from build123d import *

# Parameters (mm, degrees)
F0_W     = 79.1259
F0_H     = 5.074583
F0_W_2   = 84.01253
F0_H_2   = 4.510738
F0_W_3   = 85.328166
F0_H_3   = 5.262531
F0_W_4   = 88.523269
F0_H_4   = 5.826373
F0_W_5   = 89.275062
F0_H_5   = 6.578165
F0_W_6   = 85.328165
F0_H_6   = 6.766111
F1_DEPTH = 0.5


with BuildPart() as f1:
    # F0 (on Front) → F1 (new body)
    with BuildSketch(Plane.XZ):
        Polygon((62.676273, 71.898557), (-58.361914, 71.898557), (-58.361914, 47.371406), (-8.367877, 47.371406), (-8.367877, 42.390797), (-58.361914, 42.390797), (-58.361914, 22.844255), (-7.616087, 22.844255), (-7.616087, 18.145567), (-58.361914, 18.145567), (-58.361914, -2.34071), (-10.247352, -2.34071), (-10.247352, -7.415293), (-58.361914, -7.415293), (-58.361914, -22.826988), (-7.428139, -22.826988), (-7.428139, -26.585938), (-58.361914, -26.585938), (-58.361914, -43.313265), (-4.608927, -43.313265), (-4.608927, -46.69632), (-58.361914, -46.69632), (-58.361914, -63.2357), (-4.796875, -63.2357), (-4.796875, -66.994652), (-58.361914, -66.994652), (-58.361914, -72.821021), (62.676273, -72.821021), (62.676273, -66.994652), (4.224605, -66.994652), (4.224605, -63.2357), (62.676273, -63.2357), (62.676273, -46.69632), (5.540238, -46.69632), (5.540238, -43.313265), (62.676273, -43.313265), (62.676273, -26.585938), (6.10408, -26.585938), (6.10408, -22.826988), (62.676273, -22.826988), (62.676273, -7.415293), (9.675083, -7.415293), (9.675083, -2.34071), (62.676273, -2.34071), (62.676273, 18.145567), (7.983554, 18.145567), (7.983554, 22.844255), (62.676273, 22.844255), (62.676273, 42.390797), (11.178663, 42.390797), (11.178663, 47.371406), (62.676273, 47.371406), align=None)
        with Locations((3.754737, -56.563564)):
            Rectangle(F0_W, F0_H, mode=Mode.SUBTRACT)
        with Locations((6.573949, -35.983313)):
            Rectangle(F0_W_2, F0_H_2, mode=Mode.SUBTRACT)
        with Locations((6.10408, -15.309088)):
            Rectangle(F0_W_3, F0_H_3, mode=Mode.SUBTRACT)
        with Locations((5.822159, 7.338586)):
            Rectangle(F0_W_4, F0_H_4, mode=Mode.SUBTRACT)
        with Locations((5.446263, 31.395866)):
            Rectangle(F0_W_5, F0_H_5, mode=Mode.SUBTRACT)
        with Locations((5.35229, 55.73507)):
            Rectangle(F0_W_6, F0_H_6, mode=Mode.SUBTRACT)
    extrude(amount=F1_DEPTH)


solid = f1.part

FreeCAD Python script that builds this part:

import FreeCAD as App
import Part
import Sketcher
from FreeCAD import Vector
Q = App.Units.Quantity


def add_polygon(sketch, points):
    """Adds a closed chain of lines whose ends are joined by coincident constraints."""
    first, n = sketch.GeometryCount, len(points)
    for a, b in zip(points, points[1:] + points[:1]):
        sketch.addGeometry(Part.LineSegment(App.Vector(*a, 0), App.Vector(*b, 0)), False)
    for i in range(n):
        sketch.addConstraint(Sketcher.Constraint("Coincident", first + i, 2, first + (i + 1) % n, 1))

doc = App.newDocument("Part")
body = doc.addObject("PartDesign::Body", "Body")

sketch1 = body.newObject("Sketcher::SketchObject", "Sketch")
sketch1.AttachmentSupport = (doc.getObject("XZ_Plane"), [""])
sketch1.MapMode = "FlatFace"
add_polygon(sketch1, [(62.676273, 71.898557), (-58.361914, 71.898557), (-58.361914, 47.371406), (-8.367877, 47.371406), (-8.367877, 42.390797), (-58.361914, 42.390797), (-58.361914, 22.844255), (-7.616087, 22.844255), (-7.616087, 18.145567), (-58.361914, 18.145567), (-58.361914, -2.34071), (-10.247352, -2.34071), (-10.247352, -7.415293), (-58.361914, -7.415293), (-58.361914, -22.826988), (-7.428139, -22.826988), (-7.428139, -26.585938), (-58.361914, -26.585938), (-58.361914, -43.313265), (-4.608927, -43.313265), (-4.608927, -46.69632), (-58.361914, -46.69632), (-58.361914, -63.2357), (-4.796875, -63.2357), (-4.796875, -66.994652), (-58.361914, -66.994652), (-58.361914, -72.821021), (62.676273, -72.821021), (62.676273, -66.994652), (4.224605, -66.994652), (4.224605, -63.2357), (62.676273, -63.2357), (62.676273, -46.69632), (5.540238, -46.69632), (5.540238, -43.313265), (62.676273, -43.313265), (62.676273, -26.585938), (6.10408, -26.585938), (6.10408, -22.826988), (62.676273, -22.826988), (62.676273, -7.415293), (9.675083, -7.415293), (9.675083, -2.34071), (62.676273, -2.34071), (62.676273, 18.145567), (7.983554, 18.145567), (7.983554, 22.844255), (62.676273, 22.844255), (62.676273, 42.390797), (11.178663, 42.390797), (11.178663, 47.371406), (62.676273, 47.371406)])
add_polygon(sketch1, [(43.317687, -59.100856), (-35.808213, -59.100856), (-35.808213, -54.026272), (43.317687, -54.026272)])
add_polygon(sketch1, [(48.580214, -38.238682), (-35.432316, -38.238682), (-35.432316, -33.727944), (48.580214, -33.727944)])
add_polygon(sketch1, [(48.768163, -17.940354), (-36.560003, -17.940354), (-36.560003, -12.677822), (48.768163, -12.677822)])
add_polygon(sketch1, [(48.016373, 52.352015), (-37.311793, 52.352015), (-37.311793, 59.118125), (48.016373, 59.118125)])
add_polygon(sketch1, [(50.083793, 4.4254), (-38.439476, 4.4254), (-38.439476, 10.251772), (50.083793, 10.251772)])
add_polygon(sketch1, [(50.083794, 28.106783), (-39.191268, 28.106783), (-39.191268, 34.684948), (50.083794, 34.684948)])
sketch1.addConstraint(Sketcher.Constraint("Horizontal", 0))
sketch1.addConstraint(Sketcher.Constraint("Vertical", 1))
sketch1.addConstraint(Sketcher.Constraint("Horizontal", 2))
sketch1.addConstraint(Sketcher.Constraint("Vertical", 3))
sketch1.addConstraint(Sketcher.Constraint("Horizontal", 4))
sketch1.addConstraint(Sketcher.Constraint("Vertical", 5))
sketch1.addConstraint(Sketcher.Constraint("Horizontal", 6))
sketch1.addConstraint(Sketcher.Constraint("Vertical", 7))
sketch1.addConstraint(Sketcher.Constraint("Horizontal", 8))
sketch1.addConstraint(Sketcher.Constraint("Vertical", 9))
sketch1.addConstraint(Sketcher.Constraint("Horizontal", 10))
sketch1.addConstraint(Sketcher.Constraint("Vertical", 11))
sketch1.addConstraint(Sketcher.Constraint("Horizontal", 12))
sketch1.addConstraint(Sketcher.Constraint("Vertical", 13))
sketch1.addConstraint(Sketcher.Constraint("Horizontal", 14))
sketch1.addConstraint(Sketcher.Constraint("Vertical", 15))
sketch1.addConstraint(Sketcher.Constraint("Horizontal", 16))
sketch1.addConstraint(Sketcher.Constraint("Vertical", 17))
sketch1.addConstraint(Sketcher.Constraint("Horizontal", 18))
sketch1.addConstraint(Sketcher.Constraint("Vertical", 19))
sketch1.addConstraint(Sketcher.Constraint("Horizontal", 20))
sketch1.addConstraint(Sketcher.Constraint("Vertical", 21))
sketch1.addConstraint(Sketcher.Constraint("Horizontal", 22))
sketch1.addConstraint(Sketcher.Constraint("Vertical", 23))
sketch1.addConstraint(Sketcher.Constraint("Horizontal", 24))
sketch1.addConstraint(Sketcher.Constraint("Vertical", 25))
sketch1.addConstraint(Sketcher.Constraint("Horizontal", 26))
sketch1.addConstraint(Sketcher.Constraint("Vertical", 27))
sketch1.addConstraint(Sketcher.Constraint("Horizontal", 28))
sketch1.addConstraint(Sketcher.Constraint("Vertical", 29))
sketch1.addConstraint(Sketcher.Constraint("Horizontal", 30))
sketch1.addConstraint(Sketcher.Constraint("Vertical", 31))
sketch1.addConstraint(Sketcher.Constraint("Horizontal", 32))
sketch1.addConstraint(Sketcher.Constraint("Vertical", 33))
sketch1.addConstraint(Sketcher.Constraint("Horizontal", 34))
sketch1.addConstraint(Sketcher.Constraint("Vertical", 35))
sketch1.addConstraint(Sketcher.Constraint("Horizontal", 36))
sketch1.addConstraint(Sketcher.Constraint("Vertical", 37))
sketch1.addConstraint(Sketcher.Constraint("Horizontal", 38))
sketch1.addConstraint(Sketcher.Constraint("Vertical", 39))
sketch1.addConstraint(Sketcher.Constraint("Horizontal", 40))
sketch1.addConstraint(Sketcher.Constraint("Vertical", 41))
sketch1.addConstraint(Sketcher.Constraint("Horizontal", 42))
sketch1.addConstraint(Sketcher.Constraint("Vertical", 43))
sketch1.addConstraint(Sketcher.Constraint("Horizontal", 44))
sketch1.addConstraint(Sketcher.Constraint("Vertical", 45))
sketch1.addConstraint(Sketcher.Constraint("Horizontal", 46))
sketch1.addConstraint(Sketcher.Constraint("Vertical", 47))
sketch1.addConstraint(Sketcher.Constraint("Horizontal", 48))
sketch1.addConstraint(Sketcher.Constraint("Vertical", 49))
sketch1.addConstraint(Sketcher.Constraint("Horizontal", 50))
sketch1.addConstraint(Sketcher.Constraint("Vertical", 51))
sketch1.addConstraint(Sketcher.Constraint("Horizontal", 52))
sketch1.addConstraint(Sketcher.Constraint("Vertical", 53))
sketch1.addConstraint(Sketcher.Constraint("Horizontal", 54))
sketch1.addConstraint(Sketcher.Constraint("Vertical", 55))
sketch1.addConstraint(Sketcher.Constraint("Horizontal", 56))
sketch1.addConstraint(Sketcher.Constraint("Vertical", 57))
sketch1.addConstraint(Sketcher.Constraint("Horizontal", 58))
sketch1.addConstraint(Sketcher.Constraint("Vertical", 59))
sketch1.addConstraint(Sketcher.Constraint("Horizontal", 60))
sketch1.addConstraint(Sketcher.Constraint("Vertical", 61))
sketch1.addConstraint(Sketcher.Constraint("Horizontal", 62))
sketch1.addConstraint(Sketcher.Constraint("Vertical", 63))
sketch1.addConstraint(Sketcher.Constraint("Horizontal", 64))
sketch1.addConstraint(Sketcher.Constraint("Vertical", 65))
sketch1.addConstraint(Sketcher.Constraint("Horizontal", 66))
sketch1.addConstraint(Sketcher.Constraint("Vertical", 67))
sketch1.addConstraint(Sketcher.Constraint("Horizontal", 68))
sketch1.addConstraint(Sketcher.Constraint("Vertical", 69))
sketch1.addConstraint(Sketcher.Constraint("Horizontal", 70))
sketch1.addConstraint(Sketcher.Constraint("Vertical", 71))
sketch1.addConstraint(Sketcher.Constraint("Horizontal", 72))
sketch1.addConstraint(Sketcher.Constraint("Vertical", 73))
sketch1.addConstraint(Sketcher.Constraint("Horizontal", 74))
sketch1.addConstraint(Sketcher.Constraint("Vertical", 75))
sketch1.addConstraint(Sketcher.Constraint("Horizontal", 24, 2, 27, 2))
sketch1.addConstraint(Sketcher.Constraint("Horizontal", 22, 2, 29, 2))
sketch1.addConstraint(Sketcher.Constraint("Horizontal", 20, 2, 31, 2))
sketch1.addConstraint(Sketcher.Constraint("Horizontal", 18, 2, 33, 2))
sketch1.addConstraint(Sketcher.Constraint("Horizontal", 16, 2, 35, 2))
sketch1.addConstraint(Sketcher.Constraint("Horizontal", 14, 2, 37, 2))
sketch1.addConstraint(Sketcher.Constraint("Horizontal", 12, 2, 39, 2))
sketch1.addConstraint(Sketcher.Constraint("Horizontal", 10, 2, 41, 2))
sketch1.addConstraint(Sketcher.Constraint("Horizontal", 8, 2, 43, 2))
sketch1.addConstraint(Sketcher.Constraint("Horizontal", 6, 2, 45, 2))
sketch1.addConstraint(Sketcher.Constraint("Horizontal", 4, 2, 47, 2))
sketch1.addConstraint(Sketcher.Constraint("Horizontal", 2, 2, 49, 2))
sketch1.addConstraint(Sketcher.Constraint("Vertical", 1, 2, 4, 2))
sketch1.addConstraint(Sketcher.Constraint("Vertical", 5, 2, 8, 2))
sketch1.addConstraint(Sketcher.Constraint("Vertical", 9, 2, 12, 2))
sketch1.addConstraint(Sketcher.Constraint("Vertical", 13, 2, 16, 2))
sketch1.addConstraint(Sketcher.Constraint("Vertical", 17, 2, 20, 2))
sketch1.addConstraint(Sketcher.Constraint("Vertical", 21, 2, 24, 2))
sketch1.addConstraint(Sketcher.Constraint("Vertical", 27, 2, 30, 2))
sketch1.addConstraint(Sketcher.Constraint("Vertical", 31, 2, 34, 2))
sketch1.addConstraint(Sketcher.Constraint("Vertical", 35, 2, 38, 2))
sketch1.addConstraint(Sketcher.Constraint("Vertical", 39, 2, 42, 2))
sketch1.addConstraint(Sketcher.Constraint("Vertical", 43, 2, 46, 2))
sketch1.addConstraint(Sketcher.Constraint("Vertical", 47, 2, 50, 2))
sketch1.addConstraint(Sketcher.Constraint("Vertical", 71, 2, 74, 2))
sketch1.addConstraint(Sketcher.Constraint("Equal", 62, 64))
sketch1.addConstraint(Sketcher.Constraint("Equal", 41, 53))
sketch1.addConstraint(Sketcher.Constraint("DistanceX", 52, 2, 52, 1, Q("79.1259 mm")))
sketch1.addConstraint(Sketcher.Constraint("DistanceX", 22, 1, 22, 2, Q("53.565039 mm")))
sketch1.addConstraint(Sketcher.Constraint("DistanceX", 40, 2, 40, 1, Q("53.00119 mm")))
sketch1.addConstraint(Sketcher.Constraint("DistanceX", 44, 2, 44, 1, Q("54.692719 mm")))
sketch1.addConstraint(Sketcher.Constraint("DistanceX", 48, 2, 48, 1, Q("51.49761 mm")))
sketch1.addConstraint(Sketcher.Constraint("DistanceX", 56, 2, 56, 1, Q("84.01253 mm")))
sketch1.addConstraint(Sketcher.Constraint("DistanceX", 68, 2, 68, 1, Q("88.523269 mm")))
sketch1.addConstraint(Sketcher.Constraint("DistanceX", 72, 2, 72, 1, Q("89.275062 mm")))
sketch1.addConstraint(Sketcher.Constraint("DistanceY", 1, 2, 1, 1, Q("24.527151 mm")))
sketch1.addConstraint(Sketcher.Constraint("DistanceY", 3, 2, 3, 1, Q("4.980609 mm")))
sketch1.addConstraint(Sketcher.Constraint("DistanceY", 5, 2, 5, 1, Q("19.546542 mm")))
sketch1.addConstraint(Sketcher.Constraint("DistanceY", 7, 2, 7, 1, Q("4.698688 mm")))
sketch1.addConstraint(Sketcher.Constraint("DistanceY", 15, 2, 15, 1, Q("3.75895 mm")))
sketch1.addConstraint(Sketcher.Constraint("DistanceY", 21, 2, 21, 1, Q("16.53938 mm")))
sketch1.addConstraint(Sketcher.Constraint("DistanceY", 25, 2, 25, 1, Q("5.826369 mm")))
sketch1.addConstraint(Sketcher.Constraint("DistanceY", 61, 1, 61, 2, Q("5.262531 mm")))
sketch1.addConstraint(Sketcher.Constraint("DistanceY", 65, 1, 65, 2, Q("6.766111 mm")))
sketch1.addConstraint(Sketcher.Constraint("DistanceY", 21, 2, -1, 1, Q("63.2357 mm")))
sketch1.addConstraint(Sketcher.Constraint("DistanceY", -1, 1, 68, 2, Q("4.4254 mm")))
sketch1.addConstraint(Sketcher.Constraint("DistanceX", 0, 2, 0, 1, Q("121.038187 mm")))
sketch1.addConstraint(Sketcher.Constraint("DistanceX", 2, 1, 2, 2, Q("49.994037 mm")))
sketch1.addConstraint(Sketcher.Constraint("DistanceX", 6, 1, 6, 2, Q("50.745827 mm")))
sketch1.addConstraint(Sketcher.Constraint("DistanceX", 10, 1, 10, 2, Q("48.114562 mm")))
sketch1.addConstraint(Sketcher.Constraint("DistanceX", 14, 1, 14, 2, Q("50.933775 mm")))
sketch1.addConstraint(Sketcher.Constraint("DistanceX", 18, 1, 18, 2, Q("53.752987 mm")))
sketch1.addConstraint(Sketcher.Constraint("DistanceX", 28, 2, 28, 1, Q("58.451668 mm")))
sketch1.addConstraint(Sketcher.Constraint("DistanceX", 32, 2, 32, 1, Q("57.136035 mm")))
sketch1.addConstraint(Sketcher.Constraint("DistanceX", 36, 2, 36, 1, Q("56.572193 mm")))
sketch1.addConstraint(Sketcher.Constraint("DistanceX", 60, 2, 60, 1, Q("85.328166 mm")))
sketch1.addConstraint(Sketcher.Constraint("DistanceY", 9, 2, 9, 1, Q("20.486277 mm")))
sketch1.addConstraint(Sketcher.Constraint("DistanceY", 11, 2, 11, 1, Q("5.074583 mm")))
sketch1.addConstraint(Sketcher.Constraint("DistanceY", 13, 2, 13, 1, Q("15.411695 mm")))
sketch1.addConstraint(Sketcher.Constraint("DistanceY", 17, 2, 17, 1, Q("16.727327 mm")))
sketch1.addConstraint(Sketcher.Constraint("DistanceY", 19, 2, 19, 1, Q("3.383055 mm")))
sketch1.addConstraint(Sketcher.Constraint("DistanceY", 23, 2, 23, 1, Q("3.758952 mm")))
sketch1.addConstraint(Sketcher.Constraint("DistanceY", 57, 1, 57, 2, Q("4.510738 mm")))
sketch1.addConstraint(Sketcher.Constraint("DistanceY", 69, 1, 69, 2, Q("5.826373 mm")))
sketch1.addConstraint(Sketcher.Constraint("DistanceY", 73, 1, 73, 2, Q("6.578165 mm")))
sketch1.addConstraint(Sketcher.Constraint("DistanceX", 10, 2, -1, 1, Q("10.247352 mm")))
sketch1.addConstraint(Sketcher.Constraint("DistanceY", 56, 2, -1, 1, Q("38.238682 mm")))
sketch1.addConstraint(Sketcher.Constraint("DistanceY", -1, 1, 73, 2, Q("34.684948 mm")))
sketch1.addConstraint(Sketcher.Constraint("DistanceX", 52, 2, -1, 1, Q("35.808213 mm")))
sketch1.addConstraint(Sketcher.Constraint("DistanceY", 52, 2, -1, 1, Q("59.100856 mm")))
sketch1.addConstraint(Sketcher.Constraint("DistanceX", 56, 2, -1, 1, Q("35.432316 mm")))
sketch1.addConstraint(Sketcher.Constraint("DistanceX", 60, 2, -1, 1, Q("36.560003 mm")))
sketch1.addConstraint(Sketcher.Constraint("DistanceY", 60, 2, -1, 1, Q("17.940354 mm")))
sketch1.addConstraint(Sketcher.Constraint("DistanceX", 64, 2, -1, 1, Q("37.311793 mm")))
sketch1.addConstraint(Sketcher.Constraint("DistanceY", -1, 1, 64, 2, Q("52.352015 mm")))
sketch1.addConstraint(Sketcher.Constraint("DistanceX", 68, 2, -1, 1, Q("38.439476 mm")))
pad1 = body.newObject("PartDesign::Pad", "Pad")
pad1.Profile = sketch1
pad1.Length = 0.5

doc.recompute()
